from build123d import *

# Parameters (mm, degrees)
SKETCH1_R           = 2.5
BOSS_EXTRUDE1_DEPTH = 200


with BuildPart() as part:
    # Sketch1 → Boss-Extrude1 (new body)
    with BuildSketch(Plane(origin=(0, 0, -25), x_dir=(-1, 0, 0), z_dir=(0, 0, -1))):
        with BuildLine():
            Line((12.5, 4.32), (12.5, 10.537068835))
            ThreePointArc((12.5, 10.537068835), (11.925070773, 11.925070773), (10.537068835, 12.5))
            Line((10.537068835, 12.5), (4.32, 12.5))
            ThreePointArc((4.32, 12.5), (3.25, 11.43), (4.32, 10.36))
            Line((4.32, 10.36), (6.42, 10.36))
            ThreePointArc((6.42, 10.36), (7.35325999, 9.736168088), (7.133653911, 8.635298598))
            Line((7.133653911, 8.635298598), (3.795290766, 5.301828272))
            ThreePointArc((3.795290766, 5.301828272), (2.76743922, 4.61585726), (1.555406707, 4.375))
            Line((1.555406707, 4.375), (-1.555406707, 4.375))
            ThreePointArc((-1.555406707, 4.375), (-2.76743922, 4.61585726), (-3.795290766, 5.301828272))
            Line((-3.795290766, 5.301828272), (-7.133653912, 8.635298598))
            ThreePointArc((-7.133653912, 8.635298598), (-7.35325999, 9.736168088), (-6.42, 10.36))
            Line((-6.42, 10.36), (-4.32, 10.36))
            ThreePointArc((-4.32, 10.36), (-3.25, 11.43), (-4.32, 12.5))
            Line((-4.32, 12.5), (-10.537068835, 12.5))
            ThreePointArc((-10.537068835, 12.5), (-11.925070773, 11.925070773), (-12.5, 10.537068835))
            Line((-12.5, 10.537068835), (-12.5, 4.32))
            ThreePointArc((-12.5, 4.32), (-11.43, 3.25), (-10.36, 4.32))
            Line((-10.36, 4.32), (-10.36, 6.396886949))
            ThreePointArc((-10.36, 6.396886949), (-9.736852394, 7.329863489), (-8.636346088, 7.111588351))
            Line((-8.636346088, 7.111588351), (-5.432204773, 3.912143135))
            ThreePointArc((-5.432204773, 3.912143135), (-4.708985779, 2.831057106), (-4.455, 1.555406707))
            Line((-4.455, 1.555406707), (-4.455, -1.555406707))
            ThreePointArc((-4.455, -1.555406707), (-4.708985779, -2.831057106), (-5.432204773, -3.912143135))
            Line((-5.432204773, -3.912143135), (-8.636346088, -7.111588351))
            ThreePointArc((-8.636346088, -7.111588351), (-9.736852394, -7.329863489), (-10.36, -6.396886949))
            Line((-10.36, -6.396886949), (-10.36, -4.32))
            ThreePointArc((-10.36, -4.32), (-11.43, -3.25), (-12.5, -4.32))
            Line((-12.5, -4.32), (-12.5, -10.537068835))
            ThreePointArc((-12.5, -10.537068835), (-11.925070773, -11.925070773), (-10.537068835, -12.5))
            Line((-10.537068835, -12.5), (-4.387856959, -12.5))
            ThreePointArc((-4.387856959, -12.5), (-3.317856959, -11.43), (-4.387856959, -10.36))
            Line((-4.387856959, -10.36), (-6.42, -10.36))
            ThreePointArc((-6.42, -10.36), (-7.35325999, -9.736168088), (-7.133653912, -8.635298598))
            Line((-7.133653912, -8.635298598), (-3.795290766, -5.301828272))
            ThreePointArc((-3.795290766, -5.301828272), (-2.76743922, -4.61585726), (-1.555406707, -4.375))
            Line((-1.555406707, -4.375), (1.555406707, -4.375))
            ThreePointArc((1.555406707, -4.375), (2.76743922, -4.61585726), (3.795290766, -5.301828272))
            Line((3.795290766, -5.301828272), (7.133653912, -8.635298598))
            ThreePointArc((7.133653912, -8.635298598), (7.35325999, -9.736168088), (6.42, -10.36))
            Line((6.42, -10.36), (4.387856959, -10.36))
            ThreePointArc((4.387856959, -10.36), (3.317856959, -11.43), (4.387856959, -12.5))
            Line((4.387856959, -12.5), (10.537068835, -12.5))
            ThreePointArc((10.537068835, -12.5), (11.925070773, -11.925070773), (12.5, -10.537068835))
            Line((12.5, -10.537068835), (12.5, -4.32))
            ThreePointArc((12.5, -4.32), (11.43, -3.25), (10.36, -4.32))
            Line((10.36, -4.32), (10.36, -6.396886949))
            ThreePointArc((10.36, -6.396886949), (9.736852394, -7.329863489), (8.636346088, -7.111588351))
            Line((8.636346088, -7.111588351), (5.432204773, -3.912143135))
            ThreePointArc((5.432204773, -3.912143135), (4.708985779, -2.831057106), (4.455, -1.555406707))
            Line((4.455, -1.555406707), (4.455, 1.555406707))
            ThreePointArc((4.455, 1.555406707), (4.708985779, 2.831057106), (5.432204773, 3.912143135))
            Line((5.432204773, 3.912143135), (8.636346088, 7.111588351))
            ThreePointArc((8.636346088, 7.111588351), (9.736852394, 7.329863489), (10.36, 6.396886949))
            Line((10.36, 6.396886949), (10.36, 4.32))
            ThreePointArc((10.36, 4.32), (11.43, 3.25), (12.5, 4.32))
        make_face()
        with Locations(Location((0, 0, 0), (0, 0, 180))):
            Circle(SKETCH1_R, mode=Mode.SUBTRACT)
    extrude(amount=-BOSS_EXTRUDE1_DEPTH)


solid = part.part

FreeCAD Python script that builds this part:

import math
import FreeCAD as App
import Part
import Sketcher
Q = App.Units.Quantity

doc = App.newDocument("Part")
params = doc.addObject("Spreadsheet::Sheet", "Params")
for row, (alias, value) in enumerate([
    ("sketch1_diameter", "5 mm"),
    ("sketch1_radius", "1.07 mm"),
    ("sketch1_radius2", "1.01 mm"),
    ("sketch1_radius3", "3.17 mm"),
    ("sketch1_width", "2.1 mm"),
    ("pad1_length", "200 mm"),
], start=1):
    params.set(f"A{row}", alias)
    params.set(f"B{row}", "=" + value)
    params.setAlias(f"B{row}", alias)

body = doc.addObject("PartDesign::Body", "Body")

sketch1 = body.newObject("Sketcher::SketchObject", "Sketch")
sketch1.AttachmentSupport = (doc.getObject("XY_Plane"), [""])
sketch1.MapMode = "FlatFace"
sketch1.AttachmentOffset = App.Placement(App.Vector(0, 0, -25), App.Rotation())
sketch1.addGeometry(Part.LineSegment(App.Vector(-12.5, 4.3, 0), App.Vector(-12.5, 10.5, 0)), False)
sketch1.addGeometry(Part.ArcOfCircle(Part.Circle(App.Vector(-10.5, 10.5, 0), App.Vector(0, 0, 1), 2), math.radians(90), math.radians(180)), False)
sketch1.addGeometry(Part.LineSegment(App.Vector(-10.5, 12.5, 0), App.Vector(-4.3, 12.5, 0)), False)
sketch1.addGeometry(Part.ArcOfCircle(Part.Circle(App.Vector(-4.3, 11.4, 0), App.Vector(0, 0, 1), 1.1), math.radians(-90), math.radians(90)), False)
sketch1.addGeometry(Part.LineSegment(App.Vector(-4.3, 10.4, 0), App.Vector(-6.4, 10.4, 0)), False)
sketch1.addGeometry(Part.ArcOfCircle(Part.Circle(App.Vector(-6.4, 9.4, 0), App.Vector(0, 0, 1), 1), math.radians(90), math.radians(225)), False)
sketch1.addGeometry(Part.LineSegment(App.Vector(-7.1, 8.6, 0), App.Vector(-3.8, 5.3, 0)), False)
sketch1.addGeometry(Part.ArcOfCircle(Part.Circle(App.Vector(-1.6, 7.5, 0), App.Vector(0, 0, 1), 3.2), math.radians(-135), math.radians(-90)), False)
sketch1.addGeometry(Part.LineSegment(App.Vector(-1.6, 4.4, 0), App.Vector(1.6, 4.4, 0)), False)
sketch1.addGeometry(Part.ArcOfCircle(Part.Circle(App.Vector(1.6, 7.5, 0), App.Vector(0, 0, 1), 3.2), math.radians(-90), math.radians(-45)), False)
sketch1.addGeometry(Part.LineSegment(App.Vector(3.8, 5.3, 0), App.Vector(7.1, 8.6, 0)), False)
sketch1.addGeometry(Part.ArcOfCircle(Part.Circle(App.Vector(6.4, 9.3, 0), App.Vector(0, 0, 1), 1), math.radians(-45), math.radians(90)), False)
sketch1.addGeometry(Part.LineSegment(App.Vector(6.4, 10.4, 0), App.Vector(4.3, 10.4, 0)), False)
sketch1.addGeometry(Part.ArcOfCircle(Part.Circle(App.Vector(4.3, 11.4, 0), App.Vector(0, 0, 1), 1.1), math.radians(90), math.radians(270)), False)
sketch1.addGeometry(Part.LineSegment(App.Vector(4.3, 12.5, 0), App.Vector(10.5, 12.5, 0)), False)
sketch1.addGeometry(Part.ArcOfCircle(Part.Circle(App.Vector(10.5, 10.5, 0), App.Vector(0, 0, 1), 2), math.radians(0), math.radians(90)), False)
sketch1.addGeometry(Part.LineSegment(App.Vector(12.5, 10.5, 0), App.Vector(12.5, 4.3, 0)), False)
sketch1.addGeometry(Part.ArcOfCircle(Part.Circle(App.Vector(11.4, 4.3, 0), App.Vector(0, 0, 1), 1.1), math.radians(180), math.radians(360)), False)
sketch1.addGeometry(Part.LineSegment(App.Vector(10.4, 4.3, 0), App.Vector(10.4, 6.4, 0)), False)
sketch1.addGeometry(Part.ArcOfCircle(Part.Circle(App.Vector(9.3, 6.4, 0), App.Vector(0, 0, 1), 1), math.radians(0), math.radians(135)), False)
sketch1.addGeometry(Part.LineSegment(App.Vector(8.6, 7.1, 0), App.Vector(5.4, 3.9, 0)), False)
sketch1.addGeometry(Part.ArcOfCircle(Part.Circle(App.Vector(7.8, 1.6, 0), App.Vector(0, 0, 1), 3.3), math.radians(135), math.radians(180)), False)
sketch1.addGeometry(Part.LineSegment(App.Vector(4.5, 1.6, 0), App.Vector(4.5, -1.6, 0)), False)
sketch1.addGeometry(Part.ArcOfCircle(Part.Circle(App.Vector(7.8, -1.6, 0), App.Vector(0, 0, 1), 3.3), math.radians(180), math.radians(225)), False)
sketch1.addGeometry(Part.LineSegment(App.Vector(5.4, -3.9, 0), App.Vector(8.6, -7.1, 0)), False)
sketch1.addGeometry(Part.ArcOfCircle(Part.Circle(App.Vector(9.3, -6.4, 0), App.Vector(0, 0, 1), 1), math.radians(-135), math.radians(0)), False)
sketch1.addGeometry(Part.LineSegment(App.Vector(10.4, -6.4, 0), App.Vector(10.4, -4.3, 0)), False)
sketch1.addGeometry(Part.ArcOfCircle(Part.Circle(App.Vector(11.4, -4.3, 0), App.Vector(0, 0, 1), 1.1), math.radians(0), math.radians(180)), False)
sketch1.addGeometry(Part.LineSegment(App.Vector(12.5, -4.3, 0), App.Vector(12.5, -10.5, 0)), False)
sketch1.addGeometry(Part.ArcOfCircle(Part.Circle(App.Vector(10.5, -10.5, 0), App.Vector(0, 0, 1), 2), math.radians(-90), math.radians(0)), False)
sketch1.addGeometry(Part.LineSegment(App.Vector(10.5, -12.5, 0), App.Vector(4.4, -12.5, 0)), False)
sketch1.addGeometry(Part.ArcOfCircle(Part.Circle(App.Vector(4.4, -11.4, 0), App.Vector(0, 0, 1), 1.1), math.radians(90), math.radians(270)), False)
sketch1.addGeometry(Part.LineSegment(App.Vector(4.4, -10.4, 0), App.Vector(6.4, -10.4, 0)), False)
sketch1.addGeometry(Part.ArcOfCircle(Part.Circle(App.Vector(6.4, -9.3, 0), App.Vector(0, 0, 1), 1), math.radians(-90), math.radians(45)), False)
sketch1.addGeometry(Part.LineSegment(App.Vector(7.1, -8.6, 0), App.Vector(3.8, -5.3, 0)), False)
sketch1.addGeometry(Part.ArcOfCircle(Part.Circle(App.Vector(1.6, -7.5, 0), App.Vector(0, 0, 1), 3.2), math.radians(45), math.radians(90)), False)
sketch1.addGeometry(Part.LineSegment(App.Vector(1.6, -4.4, 0), App.Vector(-1.6, -4.4, 0)), False)
sketch1.addGeometry(Part.ArcOfCircle(Part.Circle(App.Vector(-1.6, -7.5, 0), App.Vector(0, 0, 1), 3.2), math.radians(90), math.radians(135)), False)
sketch1.addGeometry(Part.LineSegment(App.Vector(-3.8, -5.3, 0), App.Vector(-7.1, -8.6, 0)), False)
sketch1.addGeometry(Part.ArcOfCircle(Part.Circle(App.Vector(-6.4, -9.3, 0), App.Vector(0, 0, 1), 1), math.radians(135), math.radians(270)), False)
sketch1.addGeometry(Part.LineSegment(App.Vector(-6.4, -10.4, 0), App.Vector(-4.4, -10.4, 0)), False)
sketch1.addGeometry(Part.ArcOfCircle(Part.Circle(App.Vector(-4.4, -11.4, 0), App.Vector(0, 0, 1), 1.1), math.radians(-90), math.radians(90)), False)
sketch1.addGeometry(Part.LineSegment(App.Vector(-4.4, -12.5, 0), App.Vector(-10.5, -12.5, 0)), False)
sketch1.addGeometry(Part.ArcOfCircle(Part.Circle(App.Vector(-10.5, -10.5, 0), App.Vector(0, 0, 1), 2), math.radians(180), math.radians(270)), False)
sketch1.addGeometry(Part.LineSegment(App.Vector(-12.5, -10.5, 0), App.Vector(-12.5, -4.3, 0)), False)
sketch1.addGeometry(Part.ArcOfCircle(Part.Circle(App.Vector(-11.4, -4.3, 0), App.Vector(0, 0, 1), 1.1), math.radians(0), math.radians(180)), False)
sketch1.addGeometry(Part.LineSegment(App.Vector(-10.4, -4.3, 0), App.Vector(-10.4, -6.4, 0)), False)
sketch1.addGeometry(Part.ArcOfCircle(Part.Circle(App.Vector(-9.3, -6.4, 0), App.Vector(0, 0, 1), 1), math.radians(-180), math.radians(-45)), False)
sketch1.addGeometry(Part.LineSegment(App.Vector(-8.6, -7.1, 0), App.Vector(-5.4, -3.9, 0)), False)
sketch1.addGeometry(Part.ArcOfCircle(Part.Circle(App.Vector(-7.8, -1.6, 0), App.Vector(0, 0, 1), 3.3), math.radians(-45), math.radians(0)), False)
sketch1.addGeometry(Part.LineSegment(App.Vector(-4.5, -1.6, 0), App.Vector(-4.5, 1.6, 0)), False)
sketch1.addGeometry(Part.ArcOfCircle(Part.Circle(App.Vector(-7.8, 1.6, 0), App.Vector(0, 0, 1), 3.3), math.radians(0), math.radians(45)), False)
sketch1.addGeometry(Part.LineSegment(App.Vector(-5.4, 3.9, 0), App.Vector(-8.6, 7.1, 0)), False)
sketch1.addGeometry(Part.ArcOfCircle(Part.Circle(App.Vector(-9.3, 6.4, 0), App.Vector(0, 0, 1), 1), math.radians(45), math.radians(180)), False)
sketch1.addGeometry(Part.LineSegment(App.Vector(-10.4, 6.4, 0), App.Vector(-10.4, 4.3, 0)), False)
sketch1.addGeometry(Part.ArcOfCircle(Part.Circle(App.Vector(-11.4, 4.3, 0), App.Vector(0, 0, 1), 1.1), math.radians(180), math.radians(360)), False)
sketch1.addGeometry(Part.Circle(App.Vector(0, 0, 0), App.Vector(0, 0, 1), 2.5), False)
sketch1.addConstraint(Sketcher.Constraint("Tangent", 0, 2, 1, 2))
sketch1.addConstraint(Sketcher.Constraint("Tangent", 1, 1, 2, 1))
sketch1.addConstraint(Sketcher.Constraint("Tangent", 2, 2, 3, 2))
sketch1.addConstraint(Sketcher.Constraint("Tangent", 3, 1, 4, 1))
sketch1.addConstraint(Sketcher.Constraint("Tangent", 4, 2, 5, 1))
sketch1.addConstraint(Sketcher.Constraint("Tangent", 5, 2, 6, 1))
sketch1.addConstraint(Sketcher.Constraint("Tangent", 6, 2, 7, 1))
sketch1.addConstraint(Sketcher.Constraint("Tangent", 7, 2, 8, 1))
sketch1.addConstraint(Sketcher.Constraint("Tangent", 8, 2, 9, 1))
sketch1.addConstraint(Sketcher.Constraint("Tangent", 9, 2, 10, 1))
sketch1.addConstraint(Sketcher.Constraint("Tangent", 10, 2, 11, 1))
sketch1.addConstraint(Sketcher.Constraint("Tangent", 11, 2, 12, 1))
sketch1.addConstraint(Sketcher.Constraint("Tangent", 12, 2, 13, 2))
sketch1.addConstraint(Sketcher.Constraint("Tangent", 13, 1, 14, 1))
sketch1.addConstraint(Sketcher.Constraint("Tangent", 14, 2, 15, 2))
sketch1.addConstraint(Sketcher.Constraint("Tangent", 15, 1, 16, 1))
sketch1.addConstraint(Sketcher.Constraint("Tangent", 16, 2, 17, 2))
sketch1.addConstraint(Sketcher.Constraint("Tangent", 17, 1, 18, 1))
sketch1.addConstraint(Sketcher.Constraint("Tangent", 18, 2, 19, 1))
sketch1.addConstraint(Sketcher.Constraint("Tangent", 19, 2, 20, 1))
sketch1.addConstraint(Sketcher.Constraint("Tangent", 20, 2, 21, 1))
sketch1.addConstraint(Sketcher.Constraint("Tangent", 21, 2, 22, 1))
sketch1.addConstraint(Sketcher.Constraint("Tangent", 22, 2, 23, 1))
sketch1.addConstraint(Sketcher.Constraint("Tangent", 23, 2, 24, 1))
sketch1.addConstraint(Sketcher.Constraint("Tangent", 24, 2, 25, 1))
sketch1.addConstraint(Sketcher.Constraint("Tangent", 25, 2, 26, 1))
sketch1.addConstraint(Sketcher.Constraint("Tangent", 26, 2, 27, 2))
sketch1.addConstraint(Sketcher.Constraint("Tangent", 27, 1, 28, 1))
sketch1.addConstraint(Sketcher.Constraint("Tangent", 28, 2, 29, 2))
sketch1.addConstraint(Sketcher.Constraint("Tangent", 29, 1, 30, 1))
sketch1.addConstraint(Sketcher.Constraint("Tangent", 30, 2, 31, 2))
sketch1.addConstraint(Sketcher.Constraint("Tangent", 31, 1, 32, 1))
sketch1.addConstraint(Sketcher.Constraint("Tangent", 32, 2, 33, 1))
sketch1.addConstraint(Sketcher.Constraint("Tangent", 33, 2, 34, 1))
sketch1.addConstraint(Sketcher.Constraint("Tangent", 34, 2, 35, 1))
sketch1.addConstraint(Sketcher.Constraint("Tangent", 35, 2, 36, 1))
sketch1.addConstraint(Sketcher.Constraint("Tangent", 36, 2, 37, 1))
sketch1.addConstraint(Sketcher.Constraint("Tangent", 37, 2, 38, 1))
sketch1.addConstraint(Sketcher.Constraint("Tangent", 38, 2, 39, 1))
sketch1.addConstraint(Sketcher.Constraint("Tangent", 39, 2, 40, 1))
sketch1.addConstraint(Sketcher.Constraint("Tangent", 40, 2, 41, 2))
sketch1.addConstraint(Sketcher.Constraint("Tangent", 41, 1, 42, 1))
sketch1.addConstraint(Sketcher.Constraint("Tangent", 42, 2, 43, 2))
sketch1.addConstraint(Sketcher.Constraint("Tangent", 43, 1, 44, 1))
sketch1.addConstraint(Sketcher.Constraint("Tangent", 44, 2, 45, 2))
sketch1.addConstraint(Sketcher.Constraint("Tangent", 45, 1, 46, 1))
sketch1.addConstraint(Sketcher.Constraint("Tangent", 46, 2, 47, 1))
sketch1.addConstraint(Sketcher.Constraint("Tangent", 47, 2, 48, 1))
sketch1.addConstraint(Sketcher.Constraint("Tangent", 48, 2, 49, 1))
sketch1.addConstraint(Sketcher.Constraint("Tangent", 49, 2, 50, 1))
sketch1.addConstraint(Sketcher.Constraint("Tangent", 50, 2, 51, 1))
sketch1.addConstraint(Sketcher.Constraint("Tangent", 51, 2, 52, 1))
sketch1.addConstraint(Sketcher.Constraint("Tangent", 52, 2, 53, 1))
sketch1.addConstraint(Sketcher.Constraint("Tangent", 53, 2, 54, 1))
sketch1.addConstraint(Sketcher.Constraint("Tangent", 54, 2, 55, 2))
sketch1.addConstraint(Sketcher.Constraint("Tangent", 55, 1, 0, 1))
sketch1.addConstraint(Sketcher.Constraint("Vertical", 0))
sketch1.addConstraint(Sketcher.Constraint("Horizontal", 2))
sketch1.addConstraint(Sketcher.Constraint("Horizontal", 4))
sketch1.addConstraint(Sketcher.Constraint("Horizontal", 8))
sketch1.addConstraint(Sketcher.Constraint("Horizontal", 12))
sketch1.addConstraint(Sketcher.Constraint("Horizontal", 14))
sketch1.addConstraint(Sketcher.Constraint("Vertical", 16))
sketch1.addConstraint(Sketcher.Constraint("Vertical", 18))
sketch1.addConstraint(Sketcher.Constraint("Vertical", 22))
sketch1.addConstraint(Sketcher.Constraint("Vertical", 26))
sketch1.addConstraint(Sketcher.Constraint("Vertical", 28))
sketch1.addConstraint(Sketcher.Constraint("Horizontal", 30))
sketch1.addConstraint(Sketcher.Constraint("Horizontal", 32))
sketch1.addConstraint(Sketcher.Constraint("Horizontal", 36))
sketch1.addConstraint(Sketcher.Constraint("Horizontal", 40))
sketch1.addConstraint(Sketcher.Constraint("Horizontal", 42))
sketch1.addConstraint(Sketcher.Constraint("Vertical", 44))
sketch1.addConstraint(Sketcher.Constraint("Vertical", 46))
sketch1.addConstraint(Sketcher.Constraint("Vertical", 50))
sketch1.addConstraint(Sketcher.Constraint("Vertical", 54))
sketch1.addConstraint(Sketcher.Constraint("Coincident", 56, 3, -1, 1))
sketch1.addConstraint(Sketcher.Constraint("Equal", 7, 9))
sketch1.addConstraint(Sketcher.Constraint("Equal", 5, 11))
sketch1.addConstraint(Sketcher.Constraint("Equal", 3, 13))
sketch1.addConstraint(Sketcher.Constraint("Equal", 1, 15))
sketch1.addConstraint(Sketcher.Constraint("Equal", 13, 17))
sketch1.addConstraint(Sketcher.Constraint("Equal", 11, 19))
sketch1.addConstraint(Sketcher.Constraint("Equal", 21, 23))
sketch1.addConstraint(Sketcher.Constraint("Equal", 19, 25))
sketch1.addConstraint(Sketcher.Constraint("Equal", 17, 27))
sketch1.addConstraint(Sketcher.Constraint("Equal", 15, 29))
sketch1.addConstraint(Sketcher.Constraint("Equal", 27, 31))
sketch1.addConstraint(Sketcher.Constraint("Equal", 25, 33))
sketch1.addConstraint(Sketcher.Constraint("Equal", 9, 35))
sketch1.addConstraint(Sketcher.Constraint("Equal", 35, 37))
sketch1.addConstraint(Sketcher.Constraint("Equal", 33, 39))
sketch1.addConstraint(Sketcher.Constraint("Equal", 31, 41))
sketch1.addConstraint(Sketcher.Constraint("Equal", 29, 43))
sketch1.addConstraint(Sketcher.Constraint("Equal", 41, 45))
sketch1.addConstraint(Sketcher.Constraint("Equal", 39, 47))
sketch1.addConstraint(Sketcher.Constraint("Equal", 23, 49))
sketch1.addConstraint(Sketcher.Constraint("Equal", 49, 51))
sketch1.addConstraint(Sketcher.Constraint("Equal", 47, 53))
sketch1.addConstraint(Sketcher.Constraint("Equal", 45, 55))
sketch1.addConstraint(Sketcher.Constraint("Symmetric", 1, 3, 29, 3, -1, 1))
sketch1.addConstraint(Sketcher.Constraint("Symmetric", 7, 3, 35, 3, -1, 1))
sketch1.addConstraint(Sketcher.Constraint("Symmetric", 11, 3, 39, 3, -1, 1))
sketch1.addConstraint(Sketcher.Constraint("Symmetric", 17, 3, 45, 3, -1, 1))
sketch1.addConstraint(Sketcher.Constraint("Symmetric", 21, 3, 49, 3, -1, 1))
sketch1.addConstraint(Sketcher.Constraint("Symmetric", 23, 2, 51, 2, -1, 1))
sketch1.addConstraint(Sketcher.Constraint("Symmetric", 5, 3, 11, 3, -2))
sketch1.addConstraint(Sketcher.Constraint("Symmetric", 27, 3, 45, 3, -2))
sketch1.addConstraint(Sketcher.Constraint("Symmetric", 34, 2, 37, 2, -2))
sketch1.addConstraint(Sketcher.Constraint("Symmetric", 24, 2, 47, 2, -2))
sketch1.addConstraint(Sketcher.Constraint("Parallel", 10, 20))
sketch1.addConstraint(Sketcher.Constraint("Parallel", 6, 24))
sketch1.addConstraint(Sketcher.Constraint("Parallel", 20, 38))
sketch1.addConstraint(Sketcher.Constraint("Horizontal", 17, 3, 55, 3))
sketch1.addConstraint(Sketcher.Constraint("Equal", 4, 12))
sketch1.addConstraint(Sketcher.Constraint("Equal", 32, 40))
sketch1.addConstraint(Sketcher.Constraint("Equal", 14, 0))
sketch1.addConstraint(Sketcher.Constraint("Equal", 36, 22))
sketch1.addConstraint(Sketcher.Constraint("Diameter", 56, Q("5 mm")))
sketch1.addConstraint(Sketcher.Constraint("Radius", 3, Q("1.07 mm")))
sketch1.addConstraint(Sketcher.Constraint("Radius", 5, Q("1.01 mm")))
sketch1.addConstraint(Sketcher.Constraint("Radius", 7, Q("3.17 mm")))
sketch1.addConstraint(Sketcher.Constraint("DistanceX", 4, 2, 4, 1, Q("2.1 mm")))
sketch1.addConstraint(Sketcher.Constraint("DistanceX", 0, 2, -1, 1, Q("12.5 mm")))
sketch1.addConstraint(Sketcher.Constraint("DistanceY", -1, 1, 1, 1, Q("12.5 mm")))
sketch1.addConstraint(Sketcher.Constraint("DistanceX", 3, 3, -1, 1, Q("4.32 mm")))
sketch1.addConstraint(Sketcher.Constraint("Radius", 1, Q("1.962931 mm")))
sketch1.addConstraint(Sketcher.Constraint("DistanceY", -1, 1, 7, 3, Q("7.545 mm")))
sketch1.addConstraint(Sketcher.Constraint("DistanceX", -1, 1, 21, 2, Q("4.455 mm")))
sketch1.addConstraint(Sketcher.Constraint("Radius", 21, Q("3.330487 mm")))
sketch1.addConstraint(Sketcher.Constraint("Distance", 6, Q("4.7177 mm")))
sketch1.addConstraint(Sketcher.Constraint("DistanceX", 30, 2, 30, 1, Q("6.149212 mm")))
sketch1.setExpression("Constraints[118]", "Params.sketch1_diameter")
sketch1.setExpression("Constraints[119]", "Params.sketch1_radius")
sketch1.setExpression("Constraints[120]", "Params.sketch1_radius2")
sketch1.setExpression("Constraints[121]", "Params.sketch1_radius3")
sketch1.setExpression("Constraints[122]", "Params.sketch1_width")
pad1 = body.newObject("PartDesign::Pad", "Pad")
pad1.Profile = sketch1
pad1.setExpression("Length", "Params.pad1_length")

doc.recompute()
